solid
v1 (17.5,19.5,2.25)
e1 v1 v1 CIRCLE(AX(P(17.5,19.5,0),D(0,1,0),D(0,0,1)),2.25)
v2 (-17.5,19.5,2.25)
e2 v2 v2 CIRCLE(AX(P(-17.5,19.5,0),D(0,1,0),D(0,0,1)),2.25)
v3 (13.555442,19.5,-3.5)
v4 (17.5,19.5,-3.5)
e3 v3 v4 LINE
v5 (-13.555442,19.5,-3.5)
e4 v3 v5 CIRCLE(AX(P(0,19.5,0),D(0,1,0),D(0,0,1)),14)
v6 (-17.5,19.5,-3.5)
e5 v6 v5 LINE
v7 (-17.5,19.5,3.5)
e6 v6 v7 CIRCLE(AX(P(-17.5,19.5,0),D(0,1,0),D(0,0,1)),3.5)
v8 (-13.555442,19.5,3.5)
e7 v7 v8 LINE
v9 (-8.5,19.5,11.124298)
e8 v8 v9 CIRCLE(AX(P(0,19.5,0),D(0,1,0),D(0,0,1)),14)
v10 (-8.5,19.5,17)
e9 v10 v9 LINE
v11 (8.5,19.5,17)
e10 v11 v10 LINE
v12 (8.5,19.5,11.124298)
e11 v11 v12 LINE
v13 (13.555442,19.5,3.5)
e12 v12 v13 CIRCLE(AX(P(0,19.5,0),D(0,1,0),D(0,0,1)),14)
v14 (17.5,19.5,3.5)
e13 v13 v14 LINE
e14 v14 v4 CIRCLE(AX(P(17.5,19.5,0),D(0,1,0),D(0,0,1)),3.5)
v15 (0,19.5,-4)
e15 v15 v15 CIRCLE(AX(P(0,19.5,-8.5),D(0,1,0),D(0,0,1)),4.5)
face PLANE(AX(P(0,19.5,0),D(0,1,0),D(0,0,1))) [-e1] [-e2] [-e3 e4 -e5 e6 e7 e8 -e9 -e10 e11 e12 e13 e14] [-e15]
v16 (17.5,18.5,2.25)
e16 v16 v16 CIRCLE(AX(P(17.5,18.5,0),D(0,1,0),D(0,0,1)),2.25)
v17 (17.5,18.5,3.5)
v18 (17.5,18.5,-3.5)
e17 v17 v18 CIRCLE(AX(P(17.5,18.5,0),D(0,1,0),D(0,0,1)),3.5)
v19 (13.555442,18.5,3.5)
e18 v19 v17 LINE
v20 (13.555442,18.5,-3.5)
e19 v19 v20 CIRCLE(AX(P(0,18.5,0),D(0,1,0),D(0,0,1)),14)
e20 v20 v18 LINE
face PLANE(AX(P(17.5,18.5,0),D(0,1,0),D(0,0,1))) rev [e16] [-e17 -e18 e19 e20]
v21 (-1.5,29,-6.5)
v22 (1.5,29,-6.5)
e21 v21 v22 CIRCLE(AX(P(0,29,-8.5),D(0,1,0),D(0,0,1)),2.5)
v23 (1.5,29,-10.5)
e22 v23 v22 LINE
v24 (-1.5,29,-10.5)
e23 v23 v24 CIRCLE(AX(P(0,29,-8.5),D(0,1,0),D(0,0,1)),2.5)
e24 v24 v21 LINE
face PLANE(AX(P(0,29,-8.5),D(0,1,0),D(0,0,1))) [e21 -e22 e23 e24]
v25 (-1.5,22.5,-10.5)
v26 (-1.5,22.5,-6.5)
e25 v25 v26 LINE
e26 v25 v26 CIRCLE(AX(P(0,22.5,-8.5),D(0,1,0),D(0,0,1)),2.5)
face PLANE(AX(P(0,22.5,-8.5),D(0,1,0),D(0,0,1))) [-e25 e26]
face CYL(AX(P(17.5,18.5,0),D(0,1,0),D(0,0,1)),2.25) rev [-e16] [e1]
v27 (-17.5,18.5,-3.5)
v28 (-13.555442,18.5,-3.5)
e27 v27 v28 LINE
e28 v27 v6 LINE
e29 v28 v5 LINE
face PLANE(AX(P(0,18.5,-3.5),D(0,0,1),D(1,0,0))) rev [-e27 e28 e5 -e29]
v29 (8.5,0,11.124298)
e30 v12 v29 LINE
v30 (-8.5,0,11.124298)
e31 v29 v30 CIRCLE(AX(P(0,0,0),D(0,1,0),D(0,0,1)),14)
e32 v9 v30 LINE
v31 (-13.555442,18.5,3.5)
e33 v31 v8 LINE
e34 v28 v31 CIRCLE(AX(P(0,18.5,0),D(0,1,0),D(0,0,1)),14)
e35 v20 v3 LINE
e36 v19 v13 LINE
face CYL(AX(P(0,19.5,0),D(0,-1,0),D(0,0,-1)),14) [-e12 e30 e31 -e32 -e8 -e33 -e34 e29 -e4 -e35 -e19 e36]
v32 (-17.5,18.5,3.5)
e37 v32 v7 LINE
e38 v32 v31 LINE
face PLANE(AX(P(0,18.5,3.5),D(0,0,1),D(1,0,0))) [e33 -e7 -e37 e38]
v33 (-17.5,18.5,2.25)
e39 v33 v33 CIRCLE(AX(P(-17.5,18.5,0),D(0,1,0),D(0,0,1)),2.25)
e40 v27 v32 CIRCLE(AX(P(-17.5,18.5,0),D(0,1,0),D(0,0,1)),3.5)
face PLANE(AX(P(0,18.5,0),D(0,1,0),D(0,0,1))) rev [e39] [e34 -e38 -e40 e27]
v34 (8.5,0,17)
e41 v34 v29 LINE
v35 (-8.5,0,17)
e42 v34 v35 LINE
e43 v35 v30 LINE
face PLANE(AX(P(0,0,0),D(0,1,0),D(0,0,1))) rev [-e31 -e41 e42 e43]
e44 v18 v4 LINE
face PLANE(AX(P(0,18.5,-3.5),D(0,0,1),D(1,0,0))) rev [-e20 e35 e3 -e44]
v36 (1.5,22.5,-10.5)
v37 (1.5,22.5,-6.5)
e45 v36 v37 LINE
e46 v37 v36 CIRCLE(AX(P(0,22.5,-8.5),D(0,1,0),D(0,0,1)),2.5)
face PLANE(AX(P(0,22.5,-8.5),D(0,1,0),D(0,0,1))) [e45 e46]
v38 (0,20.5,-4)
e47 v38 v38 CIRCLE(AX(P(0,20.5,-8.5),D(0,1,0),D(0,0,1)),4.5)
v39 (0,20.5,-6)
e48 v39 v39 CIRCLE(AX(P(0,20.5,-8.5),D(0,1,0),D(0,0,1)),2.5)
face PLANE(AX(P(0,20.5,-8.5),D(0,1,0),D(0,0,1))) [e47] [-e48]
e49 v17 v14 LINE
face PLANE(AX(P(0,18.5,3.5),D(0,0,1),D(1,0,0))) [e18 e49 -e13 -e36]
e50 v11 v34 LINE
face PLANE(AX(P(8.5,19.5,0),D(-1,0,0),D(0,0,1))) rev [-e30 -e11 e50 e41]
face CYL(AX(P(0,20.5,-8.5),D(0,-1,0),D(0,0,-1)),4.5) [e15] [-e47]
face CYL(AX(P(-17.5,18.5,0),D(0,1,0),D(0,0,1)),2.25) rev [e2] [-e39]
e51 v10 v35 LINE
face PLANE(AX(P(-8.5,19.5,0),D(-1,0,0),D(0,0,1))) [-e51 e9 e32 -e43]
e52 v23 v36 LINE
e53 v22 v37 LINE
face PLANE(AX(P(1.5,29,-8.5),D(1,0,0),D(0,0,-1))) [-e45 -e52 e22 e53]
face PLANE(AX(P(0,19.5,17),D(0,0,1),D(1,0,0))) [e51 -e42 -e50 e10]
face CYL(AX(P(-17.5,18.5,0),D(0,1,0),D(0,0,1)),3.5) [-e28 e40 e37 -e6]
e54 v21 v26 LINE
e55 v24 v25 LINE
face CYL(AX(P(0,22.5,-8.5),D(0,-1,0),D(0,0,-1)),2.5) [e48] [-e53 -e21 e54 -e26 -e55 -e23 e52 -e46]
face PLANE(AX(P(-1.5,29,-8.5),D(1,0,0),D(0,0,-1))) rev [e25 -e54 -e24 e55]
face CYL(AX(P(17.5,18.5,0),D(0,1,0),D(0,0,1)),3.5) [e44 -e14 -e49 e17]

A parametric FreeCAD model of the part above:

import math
import FreeCAD as App
import Part
import Sketcher
from FreeCAD import Vector
Q = App.Units.Quantity

doc = App.newDocument("Part")
body = doc.addObject("PartDesign::Body", "Body")

sketch1 = body.newObject("Sketcher::SketchObject", "Sketch")
sketch1.AttachmentSupport = (doc.getObject("XZ_Plane"), [""])
sketch1.MapMode = "FlatFace"
sketch1.addGeometry(Part.LineSegment(Vector(-8.5, 17, 0), Vector(8.5, 17, 0)), False)
sketch1.addGeometry(Part.LineSegment(Vector(8.5, 17, 0), Vector(8.5, 11.124298, 0)), False)
sketch1.addGeometry(Part.ArcOfCircle(Part.Circle(Vector(0, 0, 0), Vector(0, 0, 1), 14), math.radians(127.383198), math.radians(412.616802)), False)
sketch1.addGeometry(Part.LineSegment(Vector(-8.5, 11.124298, 0), Vector(-8.5, 17, 0)), False)
sketch1.addConstraint(Sketcher.Constraint("Coincident", 0, 2, 1, 1))
sketch1.addConstraint(Sketcher.Constraint("Coincident", 1, 2, 2, 2))
sketch1.addConstraint(Sketcher.Constraint("Coincident", 2, 1, 3, 1))
sketch1.addConstraint(Sketcher.Constraint("Coincident", 3, 2, 0, 1))
sketch1.addConstraint(Sketcher.Constraint("Horizontal", 0))
sketch1.addConstraint(Sketcher.Constraint("Vertical", 1))
sketch1.addConstraint(Sketcher.Constraint("Vertical", 3))
sketch1.addConstraint(Sketcher.Constraint("Coincident", 2, 3, -1, 1))
sketch1.addConstraint(Sketcher.Constraint("Horizontal", 1, 2, 2, 1))
sketch1.addConstraint(Sketcher.Constraint("Radius", 2, Q("14 mm")))
sketch1.addConstraint(Sketcher.Constraint("DistanceX", 0, 1, 0, 2, Q("17 mm")))
sketch1.addConstraint(Sketcher.Constraint("DistanceY", -1, 1, 0, 2, Q("17 mm")))
pad1 = body.newObject("PartDesign::Pad", "Pad")
pad1.Profile = sketch1
pad1.Length = 19.5
pad1.Reversed = True

sketch2 = body.newObject("Sketcher::SketchObject", "Sketch001")
sketch2.AttachmentSupport = (doc.getObject("XZ_Plane"), [""])
sketch2.MapMode = "FlatFace"
sketch2.AttachmentOffset = App.Placement(Vector(0, 0, -18.5), App.Rotation())
sketch2.addGeometry(Part.LineSegment(Vector(13.555442, 3.5, 0), Vector(17.5, 3.5, 0)), False)
sketch2.addGeometry(Part.ArcOfCircle(Part.Circle(Vector(17.5, 0, 0), Vector(0, 0, 1), 3.5), math.radians(-90), math.radians(90)), False)
sketch2.addGeometry(Part.LineSegment(Vector(17.5, -3.5, 0), Vector(13.555442, -3.5, 0)), False)
sketch2.addGeometry(Part.ArcOfCircle(Part.Circle(Vector(0, 0, 0), Vector(0, 0, 1), 14), math.radians(-14.477512), math.radians(14.477512)), False)
sketch2.addGeometry(Part.Circle(Vector(17.5, 0, 0), Vector(0, 0, 1), 2.25), False)
sketch2.addGeometry(Part.LineSegment(Vector(-17.5, 3.5, 0), Vector(-13.555442, 3.5, 0)), False)
sketch2.addGeometry(Part.ArcOfCircle(Part.Circle(Vector(0, 0, 0), Vector(0, 0, 1), 14), math.radians(165.522488), math.radians(194.477512)), False)
sketch2.addGeometry(Part.LineSegment(Vector(-13.555442, -3.5, 0), Vector(-17.5, -3.5, 0)), False)
sketch2.addGeometry(Part.ArcOfCircle(Part.Circle(Vector(-17.5, 0, 0), Vector(0, 0, 1), 3.5), math.radians(90), math.radians(270)), False)
sketch2.addGeometry(Part.Circle(Vector(-17.5, 0, 0), Vector(0, 0, 1), 2.25), False)
sketch2.addConstraint(Sketcher.Constraint("Tangent", 0, 2, 1, 2))
sketch2.addConstraint(Sketcher.Constraint("Tangent", 1, 1, 2, 1))
sketch2.addConstraint(Sketcher.Constraint("Coincident", 2, 2, 3, 1))
sketch2.addConstraint(Sketcher.Constraint("Coincident", 3, 2, 0, 1))
sketch2.addConstraint(Sketcher.Constraint("Coincident", 5, 2, 6, 1))
sketch2.addConstraint(Sketcher.Constraint("Coincident", 6, 2, 7, 1))
sketch2.addConstraint(Sketcher.Constraint("Tangent", 7, 2, 8, 2))
sketch2.addConstraint(Sketcher.Constraint("Tangent", 8, 1, 5, 1))
sketch2.addConstraint(Sketcher.Constraint("Horizontal", 0))
sketch2.addConstraint(Sketcher.Constraint("Horizontal", 2))
sketch2.addConstraint(Sketcher.Constraint("Horizontal", 5))
sketch2.addConstraint(Sketcher.Constraint("Horizontal", 7))
sketch2.addConstraint(Sketcher.Constraint("Coincident", 3, 3, -1, 1))
sketch2.addConstraint(Sketcher.Constraint("Coincident", 6, 3, -1, 1))
sketch2.addConstraint(Sketcher.Constraint("Coincident", 4, 3, 1, 3))
sketch2.addConstraint(Sketcher.Constraint("Coincident", 9, 3, 8, 3))
sketch2.addConstraint(Sketcher.Constraint("Equal", 3, 6))
sketch2.addConstraint(Sketcher.Constraint("Equal", 1, 8))
sketch2.addConstraint(Sketcher.Constraint("Equal", 4, 9))
sketch2.addConstraint(Sketcher.Constraint("Symmetric", 1, 3, 8, 3, -1, 1))
sketch2.addConstraint(Sketcher.Constraint("PointOnObject", 1, 3, -1))
sketch2.addConstraint(Sketcher.Constraint("Radius", 3, Q("14 mm")))
sketch2.addConstraint(Sketcher.Constraint("Diameter", 4, Q("4.5 mm")))
sketch2.addConstraint(Sketcher.Constraint("Radius", 1, Q("3.5 mm")))
sketch2.addConstraint(Sketcher.Constraint("DistanceX", 8, 3, 1, 3, Q("35 mm")))
pad2 = body.newObject("PartDesign::Pad", "Pad001")
pad2.Profile = sketch2
pad2.Length = 1
pad2.Reversed = True

sketch3 = body.newObject("Sketcher::SketchObject", "Sketch002")
sketch3.AttachmentSupport = (doc.getObject("XZ_Plane"), [""])
sketch3.MapMode = "FlatFace"
sketch3.AttachmentOffset = App.Placement(Vector(0, 0, -19.5), App.Rotation())
sketch3.addGeometry(Part.Circle(Vector(0, -8.5, 0), Vector(0, 0, 1), 4.5), False)
sketch3.addConstraint(Sketcher.Constraint("PointOnObject", 0, 3, -2))
sketch3.addConstraint(Sketcher.Constraint("Diameter", 0, Q("9 mm")))
sketch3.addConstraint(Sketcher.Constraint("DistanceY", 0, 3, -1, 1, Q("8.5 mm")))
pad3 = body.newObject("PartDesign::Pad", "Pad002")
pad3.Profile = sketch3
pad3.Length = 1
pad3.Reversed = True

sketch4 = body.newObject("Sketcher::SketchObject", "Sketch003")
sketch4.AttachmentSupport = (doc.getObject("XZ_Plane"), [""])
sketch4.MapMode = "FlatFace"
sketch4.AttachmentOffset = App.Placement(Vector(0, 0, -20.5), App.Rotation())
sketch4.addGeometry(Part.Circle(Vector(0, -8.5, 0), Vector(0, 0, 1), 2.5), False)
sketch4.addConstraint(Sketcher.Constraint("PointOnObject", 0, 3, -2))
sketch4.addConstraint(Sketcher.Constraint("Diameter", 0, Q("5 mm")))
sketch4.addConstraint(Sketcher.Constraint("DistanceY", 0, 3, -1, 1, Q("8.5 mm")))
pad4 = body.newObject("PartDesign::Pad", "Pad003")
pad4.Profile = sketch4
pad4.Length = 2
pad4.Reversed = True

sketch5 = body.newObject("Sketcher::SketchObject", "Sketch004")
sketch5.AttachmentSupport = (doc.getObject("XZ_Plane"), [""])
sketch5.MapMode = "FlatFace"
sketch5.AttachmentOffset = App.Placement(Vector(0, 0, -22.5), App.Rotation())
sketch5.addGeometry(Part.ArcOfCircle(Part.Circle(Vector(0, -8.5, 0), Vector(0, 0, 1), 2.5), math.radians(53.130102), math.radians(126.869898)), False)
sketch5.addGeometry(Part.LineSegment(Vector(1.5, -6.5, 0), Vector(1.5, -10.5, 0)), False)
sketch5.addGeometry(Part.ArcOfCircle(Part.Circle(Vector(0, -8.5, 0), Vector(0, 0, 1), 2.5), math.radians(-126.869898), math.radians(-53.130102)), False)
sketch5.addGeometry(Part.LineSegment(Vector(-1.5, -10.5, 0), Vector(-1.5, -6.5, 0)), False)
sketch5.addConstraint(Sketcher.Constraint("Coincident", 0, 1, 1, 1))
sketch5.addConstraint(Sketcher.Constraint("Coincident", 1, 2, 2, 2))
sketch5.addConstraint(Sketcher.Constraint("Coincident", 2, 1, 3, 1))
sketch5.addConstraint(Sketcher.Constraint("Coincident", 3, 2, 0, 2))
sketch5.addConstraint(Sketcher.Constraint("Vertical", 1))
sketch5.addConstraint(Sketcher.Constraint("Vertical", 3))
sketch5.addConstraint(Sketcher.Constraint("Coincident", 2, 3, 0, 3))
sketch5.addConstraint(Sketcher.Constraint("Equal", 0, 2))
sketch5.addConstraint(Sketcher.Constraint("Symmetric", 1, 2, 2, 1, -2))
sketch5.addConstraint(Sketcher.Constraint("Radius", 0, Q("2.5 mm")))
sketch5.addConstraint(Sketcher.Constraint("DistanceY", 1, 2, 1, 1, Q("4 mm")))
sketch5.addConstraint(Sketcher.Constraint("DistanceY", 0, 3, -1, 1, Q("8.5 mm")))
pad5 = body.newObject("PartDesign::Pad", "Pad004")
pad5.Profile = sketch5
pad5.Length = 6.5
pad5.Reversed = True

doc.recompute()
